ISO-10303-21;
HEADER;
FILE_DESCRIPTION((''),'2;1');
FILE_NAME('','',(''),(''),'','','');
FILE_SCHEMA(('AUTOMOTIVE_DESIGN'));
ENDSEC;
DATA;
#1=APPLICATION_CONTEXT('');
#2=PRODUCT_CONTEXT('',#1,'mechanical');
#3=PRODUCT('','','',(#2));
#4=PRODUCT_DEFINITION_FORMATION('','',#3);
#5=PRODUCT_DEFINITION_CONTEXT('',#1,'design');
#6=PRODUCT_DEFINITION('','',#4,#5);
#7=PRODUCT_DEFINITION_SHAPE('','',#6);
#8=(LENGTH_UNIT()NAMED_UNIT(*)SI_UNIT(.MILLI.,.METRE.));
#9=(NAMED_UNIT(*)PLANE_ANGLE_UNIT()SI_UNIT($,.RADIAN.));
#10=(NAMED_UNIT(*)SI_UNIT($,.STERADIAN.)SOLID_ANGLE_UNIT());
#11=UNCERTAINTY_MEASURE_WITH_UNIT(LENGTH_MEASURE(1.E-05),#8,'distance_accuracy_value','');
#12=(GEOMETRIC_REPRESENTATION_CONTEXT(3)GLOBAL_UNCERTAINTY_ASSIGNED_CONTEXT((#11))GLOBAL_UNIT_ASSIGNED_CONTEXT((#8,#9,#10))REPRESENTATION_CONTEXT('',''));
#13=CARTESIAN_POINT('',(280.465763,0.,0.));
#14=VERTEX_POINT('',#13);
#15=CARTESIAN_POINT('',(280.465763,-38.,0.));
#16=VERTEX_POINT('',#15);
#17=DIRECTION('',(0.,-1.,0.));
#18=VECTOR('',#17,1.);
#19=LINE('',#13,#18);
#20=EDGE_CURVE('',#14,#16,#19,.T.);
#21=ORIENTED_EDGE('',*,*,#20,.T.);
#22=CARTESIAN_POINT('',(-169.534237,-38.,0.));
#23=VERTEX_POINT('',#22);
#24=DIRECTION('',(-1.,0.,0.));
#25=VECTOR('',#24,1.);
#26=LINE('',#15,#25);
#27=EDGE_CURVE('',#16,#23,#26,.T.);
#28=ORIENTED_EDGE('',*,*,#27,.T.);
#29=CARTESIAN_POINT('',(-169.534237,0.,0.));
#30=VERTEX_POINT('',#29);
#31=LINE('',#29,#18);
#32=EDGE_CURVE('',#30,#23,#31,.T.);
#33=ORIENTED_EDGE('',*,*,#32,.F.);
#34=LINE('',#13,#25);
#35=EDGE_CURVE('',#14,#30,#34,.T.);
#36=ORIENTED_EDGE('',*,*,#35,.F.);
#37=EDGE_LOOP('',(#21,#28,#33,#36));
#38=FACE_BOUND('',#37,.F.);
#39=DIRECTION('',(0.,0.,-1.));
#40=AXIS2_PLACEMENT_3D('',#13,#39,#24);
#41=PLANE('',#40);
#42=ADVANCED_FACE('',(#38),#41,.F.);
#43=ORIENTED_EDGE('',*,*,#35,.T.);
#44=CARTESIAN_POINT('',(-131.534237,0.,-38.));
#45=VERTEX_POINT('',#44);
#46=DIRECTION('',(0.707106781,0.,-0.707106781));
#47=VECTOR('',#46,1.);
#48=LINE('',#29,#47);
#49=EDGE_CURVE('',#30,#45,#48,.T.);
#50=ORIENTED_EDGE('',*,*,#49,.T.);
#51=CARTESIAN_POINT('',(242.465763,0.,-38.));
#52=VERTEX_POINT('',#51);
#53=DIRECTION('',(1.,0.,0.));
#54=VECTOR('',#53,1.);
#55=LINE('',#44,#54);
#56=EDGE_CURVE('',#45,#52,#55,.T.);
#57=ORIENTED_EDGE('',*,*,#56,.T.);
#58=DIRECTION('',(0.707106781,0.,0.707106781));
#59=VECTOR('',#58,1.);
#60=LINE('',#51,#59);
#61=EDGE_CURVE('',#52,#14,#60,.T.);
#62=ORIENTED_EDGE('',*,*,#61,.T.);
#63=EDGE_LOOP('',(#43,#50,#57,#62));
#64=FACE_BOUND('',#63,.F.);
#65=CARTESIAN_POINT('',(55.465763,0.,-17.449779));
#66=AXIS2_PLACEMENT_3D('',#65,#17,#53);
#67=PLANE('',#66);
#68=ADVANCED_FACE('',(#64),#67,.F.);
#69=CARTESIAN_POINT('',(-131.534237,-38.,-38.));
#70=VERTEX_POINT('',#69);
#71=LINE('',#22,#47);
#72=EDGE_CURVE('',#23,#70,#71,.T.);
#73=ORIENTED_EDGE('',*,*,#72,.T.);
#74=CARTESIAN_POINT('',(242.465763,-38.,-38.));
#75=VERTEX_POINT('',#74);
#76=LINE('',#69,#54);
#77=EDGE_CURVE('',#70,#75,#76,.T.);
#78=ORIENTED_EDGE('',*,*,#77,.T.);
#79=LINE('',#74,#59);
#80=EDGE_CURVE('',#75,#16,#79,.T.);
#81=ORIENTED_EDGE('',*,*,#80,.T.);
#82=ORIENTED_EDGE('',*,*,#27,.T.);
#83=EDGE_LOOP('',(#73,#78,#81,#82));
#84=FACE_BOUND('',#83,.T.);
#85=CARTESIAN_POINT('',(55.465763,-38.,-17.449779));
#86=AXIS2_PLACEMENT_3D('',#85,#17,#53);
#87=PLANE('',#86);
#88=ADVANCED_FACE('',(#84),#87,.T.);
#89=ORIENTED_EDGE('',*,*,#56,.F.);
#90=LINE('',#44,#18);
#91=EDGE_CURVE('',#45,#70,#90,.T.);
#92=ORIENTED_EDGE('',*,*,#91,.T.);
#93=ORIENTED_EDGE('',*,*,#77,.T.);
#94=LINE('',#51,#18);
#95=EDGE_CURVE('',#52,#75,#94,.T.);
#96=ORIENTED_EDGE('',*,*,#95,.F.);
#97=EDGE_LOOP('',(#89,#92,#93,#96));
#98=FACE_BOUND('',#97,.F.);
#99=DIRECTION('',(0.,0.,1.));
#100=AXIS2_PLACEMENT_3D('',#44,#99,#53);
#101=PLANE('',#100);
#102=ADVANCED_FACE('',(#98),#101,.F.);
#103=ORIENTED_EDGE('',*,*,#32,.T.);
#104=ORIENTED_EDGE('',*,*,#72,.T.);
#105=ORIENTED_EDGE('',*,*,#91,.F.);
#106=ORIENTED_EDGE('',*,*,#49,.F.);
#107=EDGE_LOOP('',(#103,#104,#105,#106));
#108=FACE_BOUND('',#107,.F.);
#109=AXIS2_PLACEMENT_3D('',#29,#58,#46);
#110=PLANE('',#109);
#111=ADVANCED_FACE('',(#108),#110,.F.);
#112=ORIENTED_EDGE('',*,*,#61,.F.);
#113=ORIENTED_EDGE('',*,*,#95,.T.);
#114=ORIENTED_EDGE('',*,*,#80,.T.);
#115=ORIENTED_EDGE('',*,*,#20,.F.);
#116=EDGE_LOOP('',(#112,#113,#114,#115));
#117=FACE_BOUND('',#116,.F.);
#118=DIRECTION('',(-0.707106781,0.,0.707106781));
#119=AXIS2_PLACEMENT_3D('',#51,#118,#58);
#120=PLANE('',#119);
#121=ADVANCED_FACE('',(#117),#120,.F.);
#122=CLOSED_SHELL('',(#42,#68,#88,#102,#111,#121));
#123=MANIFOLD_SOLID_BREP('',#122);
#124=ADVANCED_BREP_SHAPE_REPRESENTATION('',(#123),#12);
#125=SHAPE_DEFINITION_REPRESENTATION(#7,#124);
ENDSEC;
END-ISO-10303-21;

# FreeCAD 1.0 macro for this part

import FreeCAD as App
import Part
import Sketcher


def add_polygon(sketch, points):
    """Adds a closed chain of lines whose ends are joined by coincident constraints."""
    first, n = sketch.GeometryCount, len(points)
    for a, b in zip(points, points[1:] + points[:1]):
        sketch.addGeometry(Part.LineSegment(App.Vector(*a, 0), App.Vector(*b, 0)), False)
    for i in range(n):
        sketch.addConstraint(Sketcher.Constraint("Coincident", first + i, 2, first + (i + 1) % n, 1))

doc = App.newDocument("Part")
body = doc.addObject("PartDesign::Body", "Body")

# Sketch on XZ plane
sketch1 = body.newObject("Sketcher::SketchObject", "Sketch")
sketch1.AttachmentSupport = (doc.getObject("XZ_Plane"), [""])
sketch1.MapMode = "FlatFace"
add_polygon(sketch1, [(280, 0), (-170, 0), (-132, -38), (242, -38)])  # lines 0-3
sketch1.addConstraint(Sketcher.Constraint("Horizontal", 0))
sketch1.addConstraint(Sketcher.Constraint("Horizontal", 2))
sketch1.addConstraint(Sketcher.Constraint("PointOnObject", 0, 2, -1))
sketch1.addConstraint(Sketcher.Constraint("Perpendicular", 1, 3))
sketch1.addConstraint(Sketcher.Constraint("Equal", 1, 3))
sketch1.addConstraint(Sketcher.Constraint("DistanceX", 0, 2, 0, 1, 450.0))
sketch1.addConstraint(Sketcher.Constraint("DistanceX", 2, 1, 2, 2, 374.0))
sketch1.addConstraint(Sketcher.Constraint("DistanceX", 0, 2, -1, 1, 169.534237))
pad1 = body.newObject("PartDesign::Pad", "Pad")
pad1.Profile = sketch1
pad1.Length = 38
body2 = doc.addObject("PartDesign::Body", "Body001")

# Sketch on XZ plane
sketch2 = body2.newObject("Sketcher::SketchObject", "Sketch001")
sketch2.AttachmentSupport = (doc.getObject("XZ_Plane001"), [""])
sketch2.MapMode = "FlatFace"
add_polygon(sketch2, [(-286, 120), (-286, -254), (-248, -254), (-248, 120)])  # lines 0-3
sketch2.addConstraint(Sketcher.Constraint("Vertical", 0))
sketch2.addConstraint(Sketcher.Constraint("Horizontal", 1))
sketch2.addConstraint(Sketcher.Constraint("Vertical", 2))
sketch2.addConstraint(Sketcher.Constraint("Horizontal", 3))
sketch2.addConstraint(Sketcher.Constraint("DistanceX", 1, 1, 1, 2, 38.0))
sketch2.addConstraint(Sketcher.Constraint("DistanceY", 0, 2, 0, 1, 374.0))
sketch2.addConstraint(Sketcher.Constraint("DistanceX", 0, 2, -1, 1, 285.727887))
sketch2.addConstraint(Sketcher.Constraint("DistanceY", 0, 2, -1, 1, 254.336804))
pad2 = body2.newObject("PartDesign::Pad", "Pad001")
pad2.Profile = sketch2
pad2.Length = 38
body2.Visibility = False

doc.recompute()
